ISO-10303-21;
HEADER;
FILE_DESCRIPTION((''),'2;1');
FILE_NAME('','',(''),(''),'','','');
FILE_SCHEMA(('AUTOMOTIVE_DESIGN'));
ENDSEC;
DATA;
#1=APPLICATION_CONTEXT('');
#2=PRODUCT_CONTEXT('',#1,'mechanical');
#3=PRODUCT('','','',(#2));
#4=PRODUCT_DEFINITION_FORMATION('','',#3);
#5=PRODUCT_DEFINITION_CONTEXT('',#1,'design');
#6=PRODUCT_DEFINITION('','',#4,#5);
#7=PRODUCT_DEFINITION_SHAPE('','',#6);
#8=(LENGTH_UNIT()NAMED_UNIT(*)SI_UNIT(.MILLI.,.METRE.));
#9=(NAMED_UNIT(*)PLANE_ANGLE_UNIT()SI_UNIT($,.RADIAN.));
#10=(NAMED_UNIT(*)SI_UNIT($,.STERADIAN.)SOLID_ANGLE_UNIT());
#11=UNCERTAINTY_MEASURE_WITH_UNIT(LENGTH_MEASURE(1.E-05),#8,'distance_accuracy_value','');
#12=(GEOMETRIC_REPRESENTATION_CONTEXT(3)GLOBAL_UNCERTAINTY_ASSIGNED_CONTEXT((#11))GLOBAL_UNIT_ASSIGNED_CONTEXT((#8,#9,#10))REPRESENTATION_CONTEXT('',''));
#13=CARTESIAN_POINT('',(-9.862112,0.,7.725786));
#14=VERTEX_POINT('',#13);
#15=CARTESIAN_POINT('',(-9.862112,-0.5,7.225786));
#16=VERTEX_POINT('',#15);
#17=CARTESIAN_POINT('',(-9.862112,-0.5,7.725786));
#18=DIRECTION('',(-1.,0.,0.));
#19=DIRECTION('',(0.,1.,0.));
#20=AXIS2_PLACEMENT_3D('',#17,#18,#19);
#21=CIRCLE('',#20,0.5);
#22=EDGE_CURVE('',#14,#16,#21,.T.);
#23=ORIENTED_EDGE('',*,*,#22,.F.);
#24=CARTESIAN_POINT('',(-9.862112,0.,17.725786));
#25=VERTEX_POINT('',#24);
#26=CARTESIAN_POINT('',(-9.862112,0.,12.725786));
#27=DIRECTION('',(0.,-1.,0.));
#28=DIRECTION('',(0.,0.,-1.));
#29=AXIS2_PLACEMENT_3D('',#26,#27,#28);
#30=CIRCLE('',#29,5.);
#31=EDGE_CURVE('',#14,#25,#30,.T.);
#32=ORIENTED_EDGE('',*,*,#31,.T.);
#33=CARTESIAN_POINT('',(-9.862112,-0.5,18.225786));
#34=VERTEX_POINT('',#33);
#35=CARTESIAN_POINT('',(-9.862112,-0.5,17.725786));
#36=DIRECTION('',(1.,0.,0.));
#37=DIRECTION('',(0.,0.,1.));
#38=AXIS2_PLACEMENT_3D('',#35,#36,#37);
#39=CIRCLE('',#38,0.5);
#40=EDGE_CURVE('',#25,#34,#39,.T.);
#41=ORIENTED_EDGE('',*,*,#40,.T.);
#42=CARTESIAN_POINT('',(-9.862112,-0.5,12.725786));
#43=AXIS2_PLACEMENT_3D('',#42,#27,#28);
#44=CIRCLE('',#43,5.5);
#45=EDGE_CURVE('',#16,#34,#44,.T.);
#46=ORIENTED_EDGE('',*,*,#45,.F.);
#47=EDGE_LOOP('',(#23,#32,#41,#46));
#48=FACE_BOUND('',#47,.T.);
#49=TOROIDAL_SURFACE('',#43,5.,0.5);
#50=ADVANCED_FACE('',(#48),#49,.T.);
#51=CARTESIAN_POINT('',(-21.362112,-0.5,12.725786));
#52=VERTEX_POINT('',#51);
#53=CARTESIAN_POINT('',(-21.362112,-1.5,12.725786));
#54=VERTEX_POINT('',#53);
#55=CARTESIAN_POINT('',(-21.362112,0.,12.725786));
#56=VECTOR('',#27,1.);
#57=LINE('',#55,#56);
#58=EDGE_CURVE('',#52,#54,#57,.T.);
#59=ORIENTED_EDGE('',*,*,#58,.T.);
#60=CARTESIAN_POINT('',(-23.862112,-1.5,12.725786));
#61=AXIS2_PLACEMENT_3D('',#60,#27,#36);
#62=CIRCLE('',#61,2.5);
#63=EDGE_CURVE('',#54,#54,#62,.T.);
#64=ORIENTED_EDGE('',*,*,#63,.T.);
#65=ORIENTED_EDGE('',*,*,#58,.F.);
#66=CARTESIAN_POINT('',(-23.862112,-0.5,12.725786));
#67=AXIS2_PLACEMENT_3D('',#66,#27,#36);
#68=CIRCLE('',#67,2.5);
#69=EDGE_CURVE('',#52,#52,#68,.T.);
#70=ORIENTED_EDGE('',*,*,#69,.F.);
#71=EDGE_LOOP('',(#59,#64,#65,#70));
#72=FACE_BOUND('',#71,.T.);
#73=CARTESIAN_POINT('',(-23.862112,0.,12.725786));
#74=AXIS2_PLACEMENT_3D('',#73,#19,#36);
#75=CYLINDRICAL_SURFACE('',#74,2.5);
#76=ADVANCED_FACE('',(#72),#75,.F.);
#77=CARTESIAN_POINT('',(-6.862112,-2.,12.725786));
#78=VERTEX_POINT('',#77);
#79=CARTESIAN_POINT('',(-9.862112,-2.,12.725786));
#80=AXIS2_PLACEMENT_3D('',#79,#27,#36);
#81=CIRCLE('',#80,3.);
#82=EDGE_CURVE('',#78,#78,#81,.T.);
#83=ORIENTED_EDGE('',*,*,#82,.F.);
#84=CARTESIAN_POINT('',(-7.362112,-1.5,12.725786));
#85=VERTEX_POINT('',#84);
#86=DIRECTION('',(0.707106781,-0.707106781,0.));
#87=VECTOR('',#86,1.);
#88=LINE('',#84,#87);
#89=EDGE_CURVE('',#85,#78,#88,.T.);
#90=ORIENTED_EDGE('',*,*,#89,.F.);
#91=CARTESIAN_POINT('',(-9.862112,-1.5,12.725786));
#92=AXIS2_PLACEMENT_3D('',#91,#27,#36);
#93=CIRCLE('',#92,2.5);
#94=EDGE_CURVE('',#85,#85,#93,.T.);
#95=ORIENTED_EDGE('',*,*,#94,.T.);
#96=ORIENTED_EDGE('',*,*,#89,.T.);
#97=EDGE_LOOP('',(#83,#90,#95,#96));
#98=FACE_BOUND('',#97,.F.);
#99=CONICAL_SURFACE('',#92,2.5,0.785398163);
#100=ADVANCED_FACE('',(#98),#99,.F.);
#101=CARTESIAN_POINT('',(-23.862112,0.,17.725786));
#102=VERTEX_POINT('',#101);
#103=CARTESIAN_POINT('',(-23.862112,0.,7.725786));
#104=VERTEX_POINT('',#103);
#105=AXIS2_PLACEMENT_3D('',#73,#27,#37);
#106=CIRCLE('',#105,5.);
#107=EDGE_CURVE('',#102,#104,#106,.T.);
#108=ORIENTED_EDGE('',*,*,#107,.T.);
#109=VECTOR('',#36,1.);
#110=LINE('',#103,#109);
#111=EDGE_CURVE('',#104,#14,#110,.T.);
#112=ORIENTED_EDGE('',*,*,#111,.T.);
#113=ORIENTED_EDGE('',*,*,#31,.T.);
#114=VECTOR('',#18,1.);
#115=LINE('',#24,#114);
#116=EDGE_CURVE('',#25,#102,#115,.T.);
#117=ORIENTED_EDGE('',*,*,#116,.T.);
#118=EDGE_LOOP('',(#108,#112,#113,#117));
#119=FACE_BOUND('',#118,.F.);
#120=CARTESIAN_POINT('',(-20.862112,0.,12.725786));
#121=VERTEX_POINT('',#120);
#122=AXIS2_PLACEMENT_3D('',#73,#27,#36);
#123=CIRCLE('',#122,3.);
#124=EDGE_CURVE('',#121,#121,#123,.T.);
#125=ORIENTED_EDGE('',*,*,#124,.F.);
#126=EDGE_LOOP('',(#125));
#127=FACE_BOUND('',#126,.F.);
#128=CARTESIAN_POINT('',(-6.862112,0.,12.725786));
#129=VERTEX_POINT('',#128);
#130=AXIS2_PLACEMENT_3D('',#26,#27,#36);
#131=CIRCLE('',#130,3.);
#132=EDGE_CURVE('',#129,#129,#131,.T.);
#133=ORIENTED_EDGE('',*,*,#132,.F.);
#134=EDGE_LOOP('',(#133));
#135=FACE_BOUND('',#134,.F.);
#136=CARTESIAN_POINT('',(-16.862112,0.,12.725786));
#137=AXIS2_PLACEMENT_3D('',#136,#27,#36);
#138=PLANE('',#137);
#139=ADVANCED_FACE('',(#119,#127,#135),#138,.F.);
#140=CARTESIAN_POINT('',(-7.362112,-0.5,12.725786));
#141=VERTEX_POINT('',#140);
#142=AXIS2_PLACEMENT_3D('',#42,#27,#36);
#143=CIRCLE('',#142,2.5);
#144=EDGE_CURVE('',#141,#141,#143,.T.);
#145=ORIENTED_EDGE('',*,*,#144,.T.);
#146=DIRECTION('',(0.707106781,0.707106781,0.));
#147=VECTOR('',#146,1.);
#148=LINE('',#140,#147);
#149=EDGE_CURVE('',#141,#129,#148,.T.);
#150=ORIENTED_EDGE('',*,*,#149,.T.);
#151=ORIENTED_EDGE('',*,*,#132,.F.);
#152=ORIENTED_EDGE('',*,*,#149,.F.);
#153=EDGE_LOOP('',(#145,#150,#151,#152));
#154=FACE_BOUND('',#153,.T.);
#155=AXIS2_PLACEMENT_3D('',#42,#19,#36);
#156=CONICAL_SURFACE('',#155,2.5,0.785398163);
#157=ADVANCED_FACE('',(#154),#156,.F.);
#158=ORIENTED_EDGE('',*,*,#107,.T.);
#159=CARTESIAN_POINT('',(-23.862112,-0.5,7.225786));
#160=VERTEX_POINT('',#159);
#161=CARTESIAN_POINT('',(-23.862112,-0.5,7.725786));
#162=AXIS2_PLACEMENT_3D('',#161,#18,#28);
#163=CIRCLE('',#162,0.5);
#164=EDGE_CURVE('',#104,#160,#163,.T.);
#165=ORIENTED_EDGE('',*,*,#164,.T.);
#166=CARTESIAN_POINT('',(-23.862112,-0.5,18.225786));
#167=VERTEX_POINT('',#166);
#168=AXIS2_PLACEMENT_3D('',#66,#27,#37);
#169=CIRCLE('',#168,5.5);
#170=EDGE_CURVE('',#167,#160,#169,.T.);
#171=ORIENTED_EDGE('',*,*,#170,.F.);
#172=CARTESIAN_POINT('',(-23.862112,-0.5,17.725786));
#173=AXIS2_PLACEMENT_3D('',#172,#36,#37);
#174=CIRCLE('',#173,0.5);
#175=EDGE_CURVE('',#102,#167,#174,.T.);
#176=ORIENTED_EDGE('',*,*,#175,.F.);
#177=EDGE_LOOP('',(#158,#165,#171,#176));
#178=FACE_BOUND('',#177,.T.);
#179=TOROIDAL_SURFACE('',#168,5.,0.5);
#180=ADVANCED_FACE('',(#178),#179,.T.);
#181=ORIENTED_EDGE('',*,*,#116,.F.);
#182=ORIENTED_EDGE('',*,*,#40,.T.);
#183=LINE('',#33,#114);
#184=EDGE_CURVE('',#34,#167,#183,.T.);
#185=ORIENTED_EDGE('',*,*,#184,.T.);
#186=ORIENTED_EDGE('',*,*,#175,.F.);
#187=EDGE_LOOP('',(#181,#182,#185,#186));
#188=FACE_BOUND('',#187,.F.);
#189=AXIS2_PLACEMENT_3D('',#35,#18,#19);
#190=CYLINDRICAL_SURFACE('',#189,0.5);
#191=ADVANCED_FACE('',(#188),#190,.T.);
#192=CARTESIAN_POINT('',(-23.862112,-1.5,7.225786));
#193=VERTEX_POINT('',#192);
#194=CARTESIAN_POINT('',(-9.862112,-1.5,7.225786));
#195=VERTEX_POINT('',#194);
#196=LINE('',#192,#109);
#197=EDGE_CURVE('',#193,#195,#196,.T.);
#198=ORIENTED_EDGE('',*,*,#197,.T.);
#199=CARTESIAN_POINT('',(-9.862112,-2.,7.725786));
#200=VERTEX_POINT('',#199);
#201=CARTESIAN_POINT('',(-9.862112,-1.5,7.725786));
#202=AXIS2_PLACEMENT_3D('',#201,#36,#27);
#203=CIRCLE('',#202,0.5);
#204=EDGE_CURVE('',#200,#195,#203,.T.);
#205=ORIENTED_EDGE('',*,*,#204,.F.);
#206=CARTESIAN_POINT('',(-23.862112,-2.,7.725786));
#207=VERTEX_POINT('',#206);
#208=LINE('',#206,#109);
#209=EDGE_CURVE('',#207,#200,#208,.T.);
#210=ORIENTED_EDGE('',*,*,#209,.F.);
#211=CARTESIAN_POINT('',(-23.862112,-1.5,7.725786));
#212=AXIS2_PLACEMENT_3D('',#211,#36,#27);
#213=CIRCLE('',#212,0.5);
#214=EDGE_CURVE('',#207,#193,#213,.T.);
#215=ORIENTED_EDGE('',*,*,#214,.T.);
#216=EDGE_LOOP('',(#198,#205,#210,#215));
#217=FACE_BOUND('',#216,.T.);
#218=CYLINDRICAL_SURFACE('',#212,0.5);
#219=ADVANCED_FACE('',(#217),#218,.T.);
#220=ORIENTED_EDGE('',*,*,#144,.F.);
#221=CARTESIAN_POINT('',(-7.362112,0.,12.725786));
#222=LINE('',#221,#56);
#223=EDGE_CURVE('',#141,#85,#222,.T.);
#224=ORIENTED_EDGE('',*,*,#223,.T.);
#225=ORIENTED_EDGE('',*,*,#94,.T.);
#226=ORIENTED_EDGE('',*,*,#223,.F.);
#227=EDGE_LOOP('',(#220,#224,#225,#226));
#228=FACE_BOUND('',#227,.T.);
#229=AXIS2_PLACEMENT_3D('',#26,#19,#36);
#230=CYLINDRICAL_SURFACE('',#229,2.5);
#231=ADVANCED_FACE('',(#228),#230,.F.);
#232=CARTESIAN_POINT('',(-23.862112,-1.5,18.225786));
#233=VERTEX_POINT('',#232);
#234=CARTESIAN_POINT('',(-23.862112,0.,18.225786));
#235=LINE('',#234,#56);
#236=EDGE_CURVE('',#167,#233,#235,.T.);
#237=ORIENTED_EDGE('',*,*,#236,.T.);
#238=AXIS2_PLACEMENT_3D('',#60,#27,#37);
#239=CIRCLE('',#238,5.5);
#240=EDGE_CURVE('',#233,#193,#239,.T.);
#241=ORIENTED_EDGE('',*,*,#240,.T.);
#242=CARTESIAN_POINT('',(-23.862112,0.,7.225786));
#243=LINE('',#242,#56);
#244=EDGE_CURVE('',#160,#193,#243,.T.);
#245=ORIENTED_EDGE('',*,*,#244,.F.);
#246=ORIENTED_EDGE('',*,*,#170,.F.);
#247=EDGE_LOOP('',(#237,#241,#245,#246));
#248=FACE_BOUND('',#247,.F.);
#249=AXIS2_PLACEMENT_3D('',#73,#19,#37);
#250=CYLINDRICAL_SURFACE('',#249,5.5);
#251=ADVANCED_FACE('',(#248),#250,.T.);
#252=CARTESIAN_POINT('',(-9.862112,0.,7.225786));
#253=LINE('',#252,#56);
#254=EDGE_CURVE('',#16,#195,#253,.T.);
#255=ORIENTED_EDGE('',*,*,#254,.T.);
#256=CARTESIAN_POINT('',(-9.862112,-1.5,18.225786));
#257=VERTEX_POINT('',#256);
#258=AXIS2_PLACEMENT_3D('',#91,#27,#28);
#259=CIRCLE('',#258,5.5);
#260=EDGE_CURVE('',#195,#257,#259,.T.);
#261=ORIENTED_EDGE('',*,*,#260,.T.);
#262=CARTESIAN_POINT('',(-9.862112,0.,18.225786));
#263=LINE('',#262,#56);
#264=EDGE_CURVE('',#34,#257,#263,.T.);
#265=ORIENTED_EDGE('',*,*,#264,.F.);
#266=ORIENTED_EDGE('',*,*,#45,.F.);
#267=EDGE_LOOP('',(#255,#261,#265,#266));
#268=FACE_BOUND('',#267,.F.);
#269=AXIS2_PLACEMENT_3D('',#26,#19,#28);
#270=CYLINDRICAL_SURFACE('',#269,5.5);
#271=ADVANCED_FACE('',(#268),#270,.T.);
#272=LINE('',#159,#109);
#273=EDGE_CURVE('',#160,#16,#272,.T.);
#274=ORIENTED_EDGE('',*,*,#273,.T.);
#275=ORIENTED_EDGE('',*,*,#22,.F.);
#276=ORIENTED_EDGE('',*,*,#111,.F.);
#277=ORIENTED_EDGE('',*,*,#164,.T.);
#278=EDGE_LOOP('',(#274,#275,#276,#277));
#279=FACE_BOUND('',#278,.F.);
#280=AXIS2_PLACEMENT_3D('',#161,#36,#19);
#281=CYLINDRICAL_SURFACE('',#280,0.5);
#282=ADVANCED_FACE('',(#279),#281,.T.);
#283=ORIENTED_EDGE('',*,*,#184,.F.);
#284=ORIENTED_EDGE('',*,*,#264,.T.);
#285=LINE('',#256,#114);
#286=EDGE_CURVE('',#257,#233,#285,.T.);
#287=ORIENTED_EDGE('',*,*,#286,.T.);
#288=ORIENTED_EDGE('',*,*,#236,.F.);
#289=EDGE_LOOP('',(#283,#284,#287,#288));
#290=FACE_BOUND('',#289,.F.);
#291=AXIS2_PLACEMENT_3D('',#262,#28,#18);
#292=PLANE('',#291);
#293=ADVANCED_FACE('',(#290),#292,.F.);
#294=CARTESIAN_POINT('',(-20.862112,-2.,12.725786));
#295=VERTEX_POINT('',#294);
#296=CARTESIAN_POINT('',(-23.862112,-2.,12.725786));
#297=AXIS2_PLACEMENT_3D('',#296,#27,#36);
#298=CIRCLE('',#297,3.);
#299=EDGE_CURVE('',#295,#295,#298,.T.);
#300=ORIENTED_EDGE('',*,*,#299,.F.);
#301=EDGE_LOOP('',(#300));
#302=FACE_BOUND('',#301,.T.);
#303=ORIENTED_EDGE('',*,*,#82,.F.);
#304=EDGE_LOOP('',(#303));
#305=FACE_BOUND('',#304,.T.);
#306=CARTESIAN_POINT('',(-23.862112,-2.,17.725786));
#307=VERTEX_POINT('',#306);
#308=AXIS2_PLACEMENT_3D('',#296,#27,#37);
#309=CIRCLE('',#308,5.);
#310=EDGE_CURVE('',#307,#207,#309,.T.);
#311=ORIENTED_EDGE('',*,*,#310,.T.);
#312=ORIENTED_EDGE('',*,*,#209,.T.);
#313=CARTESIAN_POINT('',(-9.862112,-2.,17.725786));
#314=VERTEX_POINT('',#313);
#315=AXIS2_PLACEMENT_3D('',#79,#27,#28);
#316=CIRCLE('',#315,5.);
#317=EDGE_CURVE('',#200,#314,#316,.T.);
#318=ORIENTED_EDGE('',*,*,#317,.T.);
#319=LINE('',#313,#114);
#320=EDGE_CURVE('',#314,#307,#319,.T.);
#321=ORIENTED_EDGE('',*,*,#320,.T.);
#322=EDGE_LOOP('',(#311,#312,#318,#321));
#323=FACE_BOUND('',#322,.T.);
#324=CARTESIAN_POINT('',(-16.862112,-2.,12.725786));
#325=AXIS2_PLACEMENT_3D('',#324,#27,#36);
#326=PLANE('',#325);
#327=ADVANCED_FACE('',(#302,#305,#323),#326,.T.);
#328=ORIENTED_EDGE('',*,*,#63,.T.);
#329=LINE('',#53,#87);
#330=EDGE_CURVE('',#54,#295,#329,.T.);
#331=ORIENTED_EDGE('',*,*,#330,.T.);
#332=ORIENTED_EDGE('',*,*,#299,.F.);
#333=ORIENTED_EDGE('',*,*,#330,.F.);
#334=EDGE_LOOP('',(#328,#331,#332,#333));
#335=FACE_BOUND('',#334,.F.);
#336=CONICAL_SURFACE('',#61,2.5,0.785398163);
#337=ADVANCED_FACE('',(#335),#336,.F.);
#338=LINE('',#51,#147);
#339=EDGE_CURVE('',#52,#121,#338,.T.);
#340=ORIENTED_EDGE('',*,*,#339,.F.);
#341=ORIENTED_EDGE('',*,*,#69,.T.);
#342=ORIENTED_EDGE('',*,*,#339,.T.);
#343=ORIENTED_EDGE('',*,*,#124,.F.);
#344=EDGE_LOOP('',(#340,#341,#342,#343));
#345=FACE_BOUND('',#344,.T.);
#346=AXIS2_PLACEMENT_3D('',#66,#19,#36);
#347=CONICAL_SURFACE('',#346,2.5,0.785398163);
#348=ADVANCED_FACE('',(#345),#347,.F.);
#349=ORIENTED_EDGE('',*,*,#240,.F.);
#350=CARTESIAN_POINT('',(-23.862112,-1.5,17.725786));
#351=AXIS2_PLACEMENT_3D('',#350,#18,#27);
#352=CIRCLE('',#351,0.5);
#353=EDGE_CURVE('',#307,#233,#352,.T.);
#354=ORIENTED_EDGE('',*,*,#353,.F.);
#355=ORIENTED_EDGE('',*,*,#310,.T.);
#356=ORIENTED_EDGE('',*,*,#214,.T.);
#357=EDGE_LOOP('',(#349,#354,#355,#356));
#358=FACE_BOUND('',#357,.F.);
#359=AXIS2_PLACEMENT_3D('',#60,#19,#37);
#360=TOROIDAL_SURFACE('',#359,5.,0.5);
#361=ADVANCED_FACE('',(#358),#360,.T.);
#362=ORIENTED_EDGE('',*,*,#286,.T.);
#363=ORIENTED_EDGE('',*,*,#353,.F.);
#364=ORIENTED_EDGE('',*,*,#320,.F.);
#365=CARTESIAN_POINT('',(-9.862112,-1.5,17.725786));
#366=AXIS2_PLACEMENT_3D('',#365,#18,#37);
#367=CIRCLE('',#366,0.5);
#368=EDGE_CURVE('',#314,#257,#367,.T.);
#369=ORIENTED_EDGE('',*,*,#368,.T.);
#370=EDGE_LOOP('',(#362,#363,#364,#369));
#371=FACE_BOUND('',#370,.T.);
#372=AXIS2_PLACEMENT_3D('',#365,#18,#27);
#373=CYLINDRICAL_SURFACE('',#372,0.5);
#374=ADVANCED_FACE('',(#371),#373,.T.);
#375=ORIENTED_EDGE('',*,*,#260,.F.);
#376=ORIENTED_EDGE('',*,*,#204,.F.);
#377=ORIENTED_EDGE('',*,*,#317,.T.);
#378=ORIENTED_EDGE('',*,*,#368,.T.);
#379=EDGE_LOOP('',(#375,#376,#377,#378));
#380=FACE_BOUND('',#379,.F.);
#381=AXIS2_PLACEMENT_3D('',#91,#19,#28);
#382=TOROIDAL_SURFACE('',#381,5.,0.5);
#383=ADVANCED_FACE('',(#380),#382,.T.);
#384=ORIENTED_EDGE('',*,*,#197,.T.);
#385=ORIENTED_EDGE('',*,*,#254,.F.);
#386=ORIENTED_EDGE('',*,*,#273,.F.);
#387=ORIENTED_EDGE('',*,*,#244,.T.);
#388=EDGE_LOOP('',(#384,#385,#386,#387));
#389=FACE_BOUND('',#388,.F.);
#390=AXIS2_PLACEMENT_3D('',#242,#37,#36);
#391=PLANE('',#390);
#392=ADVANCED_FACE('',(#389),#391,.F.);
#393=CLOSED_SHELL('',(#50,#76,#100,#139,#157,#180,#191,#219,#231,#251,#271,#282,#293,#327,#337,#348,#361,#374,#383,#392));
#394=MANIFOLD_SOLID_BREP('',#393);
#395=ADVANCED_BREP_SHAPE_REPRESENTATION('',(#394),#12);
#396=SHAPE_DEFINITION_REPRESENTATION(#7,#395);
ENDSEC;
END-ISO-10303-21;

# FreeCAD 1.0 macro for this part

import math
import FreeCAD as App
import Part
import Sketcher
from FreeCAD import Vector


def edges_at(feature, points):
    """Names of the edges that pass closest to the given points."""
    edges = feature.Shape.Edges
    near = lambda p: min(range(len(edges)), key=lambda i: edges[i].distToShape(Part.Vertex(*p))[0])
    return sorted({f"Edge{near(p) + 1}" for p in points})

doc = App.newDocument("Part")
params = doc.addObject("Spreadsheet::Sheet", "Params")
for row, (alias, value) in enumerate([
    ("sketch1_diameter", "5 mm"),
    ("sketch1_radius", "5.5 mm"),
    ("sketch1_width", "14 mm"),
    ("pad1_length", "2 mm"),
    ("chamfer_size", "0.5 mm"),
    ("fillet_radius", "0.5 mm"),
], start=1):
    params.set(f"A{row}", alias)
    params.set(f"B{row}", "=" + value)
    params.setAlias(f"B{row}", alias)

body = doc.addObject("PartDesign::Body", "Body")

# Sketch on XZ plane
sketch1 = body.newObject("Sketcher::SketchObject", "Sketch")
sketch1.AttachmentSupport = (doc.getObject("XZ_Plane"), [""])
sketch1.MapMode = "FlatFace"
sketch1.addGeometry(Part.LineSegment(Vector(-9.862112, 18.225786, 0), Vector(-23.862112, 18.225786, 0)), False)
sketch1.addGeometry(Part.ArcOfCircle(Part.Circle(Vector(-23.862112, 12.725786, 0), Vector(0, 0, 1), 5.5), math.radians(90), math.radians(270)), False)
sketch1.addGeometry(Part.LineSegment(Vector(-23.862112, 7.225786, 0), Vector(-9.862112, 7.225786, 0)), False)
sketch1.addGeometry(Part.ArcOfCircle(Part.Circle(Vector(-9.862112, 12.725786, 0), Vector(0, 0, 1), 5.5), math.radians(-90), math.radians(90)), False)
sketch1.addGeometry(Part.Circle(Vector(-23.862112, 12.725786, 0), Vector(0, 0, 1), 2.5), False)
sketch1.addGeometry(Part.Circle(Vector(-9.862112, 12.725786, 0), Vector(0, 0, 1), 2.5), False)
sketch1.addConstraint(Sketcher.Constraint("Tangent", 0, 2, 1, 1))
sketch1.addConstraint(Sketcher.Constraint("Tangent", 1, 2, 2, 1))
sketch1.addConstraint(Sketcher.Constraint("Tangent", 2, 2, 3, 1))
sketch1.addConstraint(Sketcher.Constraint("Tangent", 3, 2, 0, 1))
sketch1.addConstraint(Sketcher.Constraint("Horizontal", 0))
sketch1.addConstraint(Sketcher.Constraint("Horizontal", 2))
sketch1.addConstraint(Sketcher.Constraint("Coincident", 4, 3, 1, 3))
sketch1.addConstraint(Sketcher.Constraint("Coincident", 5, 3, 3, 3))
sketch1.addConstraint(Sketcher.Constraint("Equal", 4, 5))
sketch1.addConstraint(Sketcher.Constraint("Diameter", 4, 5.0))
sketch1.addConstraint(Sketcher.Constraint("Radius", 1, 5.5))
sketch1.addConstraint(Sketcher.Constraint("DistanceX", 0, 2, 0, 1, 14.0))
sketch1.addConstraint(Sketcher.Constraint("DistanceX", 1, 3, -1, 1, 23.862112))
sketch1.addConstraint(Sketcher.Constraint("DistanceY", -1, 1, 1, 3, 12.725786))
sketch1.setExpression("Constraints[9]", "Params.sketch1_diameter")
sketch1.setExpression("Constraints[10]", "Params.sketch1_radius")
sketch1.setExpression("Constraints[11]", "Params.sketch1_width")
pad1 = body.newObject("PartDesign::Pad", "Pad")
pad1.Profile = sketch1
pad1.setExpression("Length", "Params.pad1_length")
doc.recompute()

chamfer = body.newObject("PartDesign::Chamfer", "Chamfer")
chamfer.Base = (pad1, edges_at(pad1, [
    (-26.362, -2, 12.726),
    (-26.362, 0, 12.726),
    (-12.362, -2, 12.726),
    (-12.362, 0, 12.726),
]))
chamfer.setExpression("Size", "Params.chamfer_size")
doc.recompute()

fillet = body.newObject("PartDesign::Fillet", "Fillet")
fillet.Base = (chamfer, edges_at(chamfer, [(-16.862, -2, 7.226), (-29.362, 0, 12.726)]))
fillet.setExpression("Radius", "Params.fillet_radius")

doc.recompute()
